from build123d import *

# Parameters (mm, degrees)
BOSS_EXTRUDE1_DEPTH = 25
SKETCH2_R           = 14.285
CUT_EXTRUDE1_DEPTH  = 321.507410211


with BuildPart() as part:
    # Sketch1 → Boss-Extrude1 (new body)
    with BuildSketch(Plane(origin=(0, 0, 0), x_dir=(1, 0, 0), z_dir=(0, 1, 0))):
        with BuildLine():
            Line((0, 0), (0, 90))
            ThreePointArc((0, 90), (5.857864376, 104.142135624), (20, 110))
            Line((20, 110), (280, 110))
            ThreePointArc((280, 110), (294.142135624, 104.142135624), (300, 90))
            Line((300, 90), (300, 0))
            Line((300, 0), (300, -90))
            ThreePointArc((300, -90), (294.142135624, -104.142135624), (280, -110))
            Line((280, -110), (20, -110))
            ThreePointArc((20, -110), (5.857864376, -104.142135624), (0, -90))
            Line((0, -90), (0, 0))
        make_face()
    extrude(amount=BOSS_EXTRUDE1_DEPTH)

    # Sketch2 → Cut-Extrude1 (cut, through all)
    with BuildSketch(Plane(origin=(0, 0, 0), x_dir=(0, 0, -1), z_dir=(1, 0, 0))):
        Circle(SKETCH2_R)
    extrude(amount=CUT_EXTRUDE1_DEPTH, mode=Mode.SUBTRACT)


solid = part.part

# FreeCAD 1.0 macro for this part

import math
import FreeCAD as App
import Part
import Sketcher

V = App.Vector

doc = App.newDocument("Part")
body = doc.addObject("PartDesign::Body", "Body")

sketch1 = doc.addObject("Sketcher::SketchObject", "Sketch")
body.addObject(sketch1)
sketch1.AttachmentSupport = (doc.XZ_Plane, [""])
sketch1.MapMode = "FlatFace"
sketch1.addGeometry([
    Part.ArcOfCircle(Part.Circle(V(20, -90, 0), V(0, 0, 1), 20), math.radians(180), math.radians(270)),
    Part.LineSegment(V(0, -90, 0), V(0, 90, 0)),
    Part.ArcOfCircle(Part.Circle(V(20, 90, 0), V(0, 0, 1), 20), math.radians(90), math.radians(180)),
    Part.LineSegment(V(20, 110, 0), V(280, 110, 0)),
    Part.ArcOfCircle(Part.Circle(V(280, 90, 0), V(0, 0, 1), 20), math.radians(0), math.radians(90)),
    Part.LineSegment(V(300, 90, 0), V(300, -90, 0)),
    Part.ArcOfCircle(Part.Circle(V(280, -90, 0), V(0, 0, 1), 20), math.radians(-90), math.radians(0)),
    Part.LineSegment(V(280, -110, 0), V(20, -110, 0)),
], False)
sketch1.addConstraint([
    Sketcher.Constraint("Tangent", 0, 1, 1, 1),
    Sketcher.Constraint("Tangent", 1, 2, 2, 2),
    Sketcher.Constraint("Tangent", 2, 1, 3, 1),
    Sketcher.Constraint("Tangent", 3, 2, 4, 2),
    Sketcher.Constraint("Tangent", 4, 1, 5, 1),
    Sketcher.Constraint("Tangent", 5, 2, 6, 2),
    Sketcher.Constraint("Tangent", 6, 1, 7, 1),
    Sketcher.Constraint("Tangent", 7, 2, 0, 2),
    Sketcher.Constraint("Vertical", 1),
    Sketcher.Constraint("Horizontal", 3),
    Sketcher.Constraint("Vertical", 5),
    Sketcher.Constraint("Horizontal", 7),
    Sketcher.Constraint("Equal", 0, 2),
    Sketcher.Constraint("Equal", 2, 4),
    Sketcher.Constraint("Equal", 4, 6),
    Sketcher.Constraint("Symmetric", 0, 1, 1, 2, -1, 1),
    Sketcher.Constraint("Radius", 0, 20.0),
    Sketcher.Constraint("DistanceX", 3, 1, 3, 2, 260.0),
    Sketcher.Constraint("DistanceY", 1, 1, 1, 2, 180.0),
])
pad1 = doc.addObject("PartDesign::Pad", "Pad")
body.addObject(pad1)
pad1.Profile = sketch1
pad1.Length = 25
pad1.Reversed = True

sketch2 = doc.addObject("Sketcher::SketchObject", "Sketch001")
body.addObject(sketch2)
sketch2.AttachmentSupport = (doc.YZ_Plane, [""])
sketch2.MapMode = "FlatFace"
sketch2.addGeometry(Part.Circle(V(0, 0, 0), V(0, 0, 1), 14.285), False)
sketch2.addConstraint([
    Sketcher.Constraint("Coincident", 0, 3, -1, 1),
    Sketcher.Constraint("Diameter", 0, 28.57),
])
pocket1 = doc.addObject("PartDesign::Pocket", "Pocket")
body.addObject(pocket1)
pocket1.Profile = sketch2
pocket1.Type = "ThroughAll"
pocket1.Reversed = True

doc.recompute()
